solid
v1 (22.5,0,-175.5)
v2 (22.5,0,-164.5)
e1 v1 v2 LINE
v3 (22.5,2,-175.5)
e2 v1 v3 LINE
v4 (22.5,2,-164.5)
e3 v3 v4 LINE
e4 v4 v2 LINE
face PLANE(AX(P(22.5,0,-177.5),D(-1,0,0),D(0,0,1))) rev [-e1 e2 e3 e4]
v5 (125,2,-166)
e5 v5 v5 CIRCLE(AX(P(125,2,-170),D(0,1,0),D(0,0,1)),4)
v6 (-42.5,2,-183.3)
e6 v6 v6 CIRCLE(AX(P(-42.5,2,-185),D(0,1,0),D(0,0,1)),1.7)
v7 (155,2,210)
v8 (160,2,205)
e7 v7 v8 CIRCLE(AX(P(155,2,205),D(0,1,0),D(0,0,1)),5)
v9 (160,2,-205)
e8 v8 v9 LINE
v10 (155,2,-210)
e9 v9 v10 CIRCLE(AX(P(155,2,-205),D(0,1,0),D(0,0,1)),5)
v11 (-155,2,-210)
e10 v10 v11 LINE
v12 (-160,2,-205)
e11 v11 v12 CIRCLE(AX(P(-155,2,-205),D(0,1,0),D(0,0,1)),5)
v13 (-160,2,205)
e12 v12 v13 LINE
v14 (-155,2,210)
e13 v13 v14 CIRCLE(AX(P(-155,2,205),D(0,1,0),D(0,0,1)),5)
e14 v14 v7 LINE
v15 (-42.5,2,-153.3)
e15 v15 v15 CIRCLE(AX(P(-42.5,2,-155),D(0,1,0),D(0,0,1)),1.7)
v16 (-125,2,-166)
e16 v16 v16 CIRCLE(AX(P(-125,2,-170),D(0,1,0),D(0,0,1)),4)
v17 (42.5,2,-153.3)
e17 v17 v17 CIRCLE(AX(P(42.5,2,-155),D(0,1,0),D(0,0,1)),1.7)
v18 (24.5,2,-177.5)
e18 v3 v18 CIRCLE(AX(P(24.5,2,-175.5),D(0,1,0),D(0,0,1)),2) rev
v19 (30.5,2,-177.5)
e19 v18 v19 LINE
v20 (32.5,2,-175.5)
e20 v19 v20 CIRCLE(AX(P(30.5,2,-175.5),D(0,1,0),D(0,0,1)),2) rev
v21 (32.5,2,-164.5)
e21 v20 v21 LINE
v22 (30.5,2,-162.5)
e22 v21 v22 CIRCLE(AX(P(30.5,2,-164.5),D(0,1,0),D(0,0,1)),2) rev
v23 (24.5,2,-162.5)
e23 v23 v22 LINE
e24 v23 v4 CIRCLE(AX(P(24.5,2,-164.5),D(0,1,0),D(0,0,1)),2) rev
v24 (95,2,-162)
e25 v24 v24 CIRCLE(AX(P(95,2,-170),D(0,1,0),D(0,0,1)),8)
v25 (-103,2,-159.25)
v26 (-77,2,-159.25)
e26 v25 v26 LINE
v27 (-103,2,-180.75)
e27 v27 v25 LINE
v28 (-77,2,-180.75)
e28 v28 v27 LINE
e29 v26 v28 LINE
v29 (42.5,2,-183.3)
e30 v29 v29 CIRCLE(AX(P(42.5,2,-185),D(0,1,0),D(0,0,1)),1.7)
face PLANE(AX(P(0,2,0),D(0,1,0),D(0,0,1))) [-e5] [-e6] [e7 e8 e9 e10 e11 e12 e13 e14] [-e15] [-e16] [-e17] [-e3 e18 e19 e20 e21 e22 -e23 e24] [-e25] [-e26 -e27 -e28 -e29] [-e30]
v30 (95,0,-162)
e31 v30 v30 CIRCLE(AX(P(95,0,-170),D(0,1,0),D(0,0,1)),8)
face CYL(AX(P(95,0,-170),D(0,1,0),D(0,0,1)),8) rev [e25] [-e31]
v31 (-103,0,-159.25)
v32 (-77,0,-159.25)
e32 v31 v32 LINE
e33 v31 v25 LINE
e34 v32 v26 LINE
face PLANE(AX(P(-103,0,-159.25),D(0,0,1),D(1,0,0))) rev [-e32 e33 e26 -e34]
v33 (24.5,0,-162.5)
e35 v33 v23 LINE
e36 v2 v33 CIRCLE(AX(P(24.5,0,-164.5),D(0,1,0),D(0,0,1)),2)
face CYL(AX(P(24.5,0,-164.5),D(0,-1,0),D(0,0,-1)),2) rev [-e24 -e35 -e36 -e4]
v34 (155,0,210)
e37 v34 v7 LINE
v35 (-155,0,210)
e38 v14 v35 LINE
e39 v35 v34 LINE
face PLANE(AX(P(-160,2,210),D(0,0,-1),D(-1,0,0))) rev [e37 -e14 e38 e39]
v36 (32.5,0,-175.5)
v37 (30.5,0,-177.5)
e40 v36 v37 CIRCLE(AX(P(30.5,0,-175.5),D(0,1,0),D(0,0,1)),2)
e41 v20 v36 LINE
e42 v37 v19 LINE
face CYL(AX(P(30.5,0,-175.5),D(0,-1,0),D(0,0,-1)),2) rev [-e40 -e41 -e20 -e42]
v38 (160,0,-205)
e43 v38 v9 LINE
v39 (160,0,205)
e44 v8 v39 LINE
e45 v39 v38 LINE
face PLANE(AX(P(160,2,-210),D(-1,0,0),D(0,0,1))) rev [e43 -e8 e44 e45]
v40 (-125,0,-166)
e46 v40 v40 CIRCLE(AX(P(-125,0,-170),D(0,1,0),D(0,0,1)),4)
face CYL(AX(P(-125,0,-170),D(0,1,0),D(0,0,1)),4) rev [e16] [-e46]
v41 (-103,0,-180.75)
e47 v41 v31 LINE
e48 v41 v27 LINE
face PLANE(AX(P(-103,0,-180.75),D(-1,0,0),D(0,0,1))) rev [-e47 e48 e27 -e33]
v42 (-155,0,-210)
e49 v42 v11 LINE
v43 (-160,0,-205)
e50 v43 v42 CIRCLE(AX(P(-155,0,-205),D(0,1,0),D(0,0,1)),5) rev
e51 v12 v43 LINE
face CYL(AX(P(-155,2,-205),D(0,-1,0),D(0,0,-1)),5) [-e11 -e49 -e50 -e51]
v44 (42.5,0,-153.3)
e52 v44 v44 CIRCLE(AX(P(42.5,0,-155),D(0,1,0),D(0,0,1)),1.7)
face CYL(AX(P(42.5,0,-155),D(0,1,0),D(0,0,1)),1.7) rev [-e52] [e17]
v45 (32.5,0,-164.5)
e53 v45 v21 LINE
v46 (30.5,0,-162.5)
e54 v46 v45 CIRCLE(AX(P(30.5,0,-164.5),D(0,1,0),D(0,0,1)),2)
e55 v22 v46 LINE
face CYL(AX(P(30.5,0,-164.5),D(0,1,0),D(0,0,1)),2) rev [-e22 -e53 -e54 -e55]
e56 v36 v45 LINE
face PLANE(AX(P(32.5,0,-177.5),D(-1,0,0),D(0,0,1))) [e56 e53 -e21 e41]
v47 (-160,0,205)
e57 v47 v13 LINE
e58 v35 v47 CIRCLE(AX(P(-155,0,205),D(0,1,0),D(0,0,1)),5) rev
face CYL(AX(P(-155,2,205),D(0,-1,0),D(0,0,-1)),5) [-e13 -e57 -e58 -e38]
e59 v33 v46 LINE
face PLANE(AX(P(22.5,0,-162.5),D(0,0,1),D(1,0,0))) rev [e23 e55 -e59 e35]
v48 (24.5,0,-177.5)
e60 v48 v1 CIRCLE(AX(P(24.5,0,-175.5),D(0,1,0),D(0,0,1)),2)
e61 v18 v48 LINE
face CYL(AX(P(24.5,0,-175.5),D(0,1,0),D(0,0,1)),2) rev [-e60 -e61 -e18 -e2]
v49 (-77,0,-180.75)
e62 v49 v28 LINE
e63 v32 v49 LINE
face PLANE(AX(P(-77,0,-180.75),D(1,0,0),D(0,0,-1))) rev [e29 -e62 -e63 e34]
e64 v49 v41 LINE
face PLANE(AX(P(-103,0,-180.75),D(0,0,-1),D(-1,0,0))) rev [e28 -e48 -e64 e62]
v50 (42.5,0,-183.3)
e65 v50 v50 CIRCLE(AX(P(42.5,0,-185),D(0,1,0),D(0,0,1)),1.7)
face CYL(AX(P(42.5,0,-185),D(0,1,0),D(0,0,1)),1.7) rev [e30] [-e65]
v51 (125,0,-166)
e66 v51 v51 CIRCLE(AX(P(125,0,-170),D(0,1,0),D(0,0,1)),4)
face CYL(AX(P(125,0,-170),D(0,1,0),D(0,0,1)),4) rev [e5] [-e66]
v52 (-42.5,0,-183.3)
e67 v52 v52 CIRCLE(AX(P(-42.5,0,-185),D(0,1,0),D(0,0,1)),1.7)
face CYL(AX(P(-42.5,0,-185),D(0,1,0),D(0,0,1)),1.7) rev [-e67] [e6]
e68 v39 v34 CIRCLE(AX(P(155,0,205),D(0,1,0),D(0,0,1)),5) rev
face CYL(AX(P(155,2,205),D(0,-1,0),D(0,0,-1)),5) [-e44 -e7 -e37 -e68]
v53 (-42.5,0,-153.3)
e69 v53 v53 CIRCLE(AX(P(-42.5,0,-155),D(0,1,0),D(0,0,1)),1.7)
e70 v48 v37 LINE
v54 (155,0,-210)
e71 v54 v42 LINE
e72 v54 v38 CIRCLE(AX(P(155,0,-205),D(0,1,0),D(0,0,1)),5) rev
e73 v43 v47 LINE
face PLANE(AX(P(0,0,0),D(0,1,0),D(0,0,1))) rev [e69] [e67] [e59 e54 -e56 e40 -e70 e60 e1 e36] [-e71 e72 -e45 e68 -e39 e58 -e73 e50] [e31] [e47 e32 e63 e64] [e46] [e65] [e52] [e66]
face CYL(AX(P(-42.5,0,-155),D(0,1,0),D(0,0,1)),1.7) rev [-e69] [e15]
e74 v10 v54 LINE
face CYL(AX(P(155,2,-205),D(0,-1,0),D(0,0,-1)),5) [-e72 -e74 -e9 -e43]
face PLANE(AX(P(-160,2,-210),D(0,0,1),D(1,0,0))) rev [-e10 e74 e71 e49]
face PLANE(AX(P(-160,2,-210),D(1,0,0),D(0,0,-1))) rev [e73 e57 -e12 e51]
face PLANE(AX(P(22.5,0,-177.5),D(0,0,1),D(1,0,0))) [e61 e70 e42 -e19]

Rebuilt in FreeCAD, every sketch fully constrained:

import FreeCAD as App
import Part
import Sketcher
from FreeCAD import Vector


def edges_at(feature, points):
    """Names of the edges that pass closest to the given points."""
    edges = feature.Shape.Edges
    near = lambda p: min(range(len(edges)), key=lambda i: edges[i].distToShape(Part.Vertex(*p))[0])
    return sorted({f"Edge{near(p) + 1}" for p in points})


def add_polygon(sketch, points):
    """Adds a closed chain of lines whose ends are joined by coincident constraints."""
    first, n = sketch.GeometryCount, len(points)
    for a, b in zip(points, points[1:] + points[:1]):
        sketch.addGeometry(Part.LineSegment(App.Vector(*a, 0), App.Vector(*b, 0)), False)
    for i in range(n):
        sketch.addConstraint(Sketcher.Constraint("Coincident", first + i, 2, first + (i + 1) % n, 1))

doc = App.newDocument("Part")
body = doc.addObject("PartDesign::Body", "Body")

# Sketch on XZ plane
sketch1 = doc.addObject("Sketcher::SketchObject", "Sketch")
body.addObject(sketch1)
sketch1.AttachmentSupport = (doc.XZ_Plane, [""])
sketch1.MapMode = "FlatFace"
add_polygon(sketch1, [(-160, -210), (-160, 210), (160, 210), (160, -210)])  # lines 0-3
sketch1.addConstraint(Sketcher.Constraint("Vertical", 0))
sketch1.addConstraint(Sketcher.Constraint("Horizontal", 1))
sketch1.addConstraint(Sketcher.Constraint("Vertical", 2))
sketch1.addConstraint(Sketcher.Constraint("Horizontal", 3))
sketch1.addConstraint(Sketcher.Constraint("Symmetric", 0, 2, 2, 2, -1, 1))
sketch1.addConstraint(Sketcher.Constraint("DistanceX", 1, 1, 1, 2, 320.0))
sketch1.addConstraint(Sketcher.Constraint("DistanceY", 0, 1, 0, 2, 420.0))
pad1 = doc.addObject("PartDesign::Pad", "Pad")
body.addObject(pad1)
pad1.Profile = sketch1
pad1.Length = 2
pad1.Reversed = True

# Sketch on XZ plane
sketch2 = doc.addObject("Sketcher::SketchObject", "Sketch001")
body.addObject(sketch2)
sketch2.AttachmentSupport = (doc.XZ_Plane, [""])
sketch2.MapMode = "FlatFace"
sketch2.AttachmentOffset = App.Placement(Vector(0, 0, -2), App.Rotation())
sketch2.addGeometry(Part.Circle(Vector(-42.5, -185, 0), Vector(0, 0, 1), 1.7), False)  # 0
sketch2.addGeometry(Part.Circle(Vector(42.5, -185, 0), Vector(0, 0, 1), 1.7), False)  # 1
sketch2.addGeometry(Part.Circle(Vector(42.5, -155, 0), Vector(0, 0, 1), 1.7), False)  # 2
sketch2.addGeometry(Part.Circle(Vector(-42.5, -155, 0), Vector(0, 0, 1), 1.7), False)  # 3
add_polygon(sketch2, [(22.5, -177.5), (22.5, -162.5), (32.5, -162.5), (32.5, -177.5)])  # lines 4-7
sketch2.addConstraint(Sketcher.Constraint("Vertical", 4))
sketch2.addConstraint(Sketcher.Constraint("Horizontal", 5))
sketch2.addConstraint(Sketcher.Constraint("Vertical", 6))
sketch2.addConstraint(Sketcher.Constraint("Horizontal", 7))
sketch2.addConstraint(Sketcher.Constraint("Equal", 0, 1))
sketch2.addConstraint(Sketcher.Constraint("Equal", 1, 2))
sketch2.addConstraint(Sketcher.Constraint("Equal", 2, 3))
sketch2.addConstraint(Sketcher.Constraint("Symmetric", 0, 3, 1, 3, -2))
sketch2.addConstraint(Sketcher.Constraint("Symmetric", 2, 3, 3, 3, -2))
sketch2.addConstraint(Sketcher.Constraint("Vertical", 1, 3, 2, 3))
sketch2.addConstraint(Sketcher.Constraint("Diameter", 0, 3.4))
sketch2.addConstraint(Sketcher.Constraint("DistanceX", 5, 1, 5, 2, 10.0))
sketch2.addConstraint(Sketcher.Constraint("DistanceY", 4, 1, 4, 2, 15.0))
sketch2.addConstraint(Sketcher.Constraint("DistanceY", 0, 3, -1, 1, 185.0))
sketch2.addConstraint(Sketcher.Constraint("DistanceY", 2, 3, -1, 1, 155.0))
sketch2.addConstraint(Sketcher.Constraint("DistanceX", 0, 3, 1, 3, 85.0))
sketch2.addConstraint(Sketcher.Constraint("DistanceX", 4, 2, 2, 3, 20.0))
sketch2.addConstraint(Sketcher.Constraint("DistanceY", 4, 2, -1, 1, 162.5))
pocket1 = doc.addObject("PartDesign::Pocket", "Pocket")
body.addObject(pocket1)
pocket1.Profile = sketch2
pocket1.Length = 2
pocket1.Reversed = True

# Sketch on XZ plane
sketch3 = doc.addObject("Sketcher::SketchObject", "Sketch002")
body.addObject(sketch3)
sketch3.AttachmentSupport = (doc.XZ_Plane, [""])
sketch3.MapMode = "FlatFace"
sketch3.AttachmentOffset = App.Placement(Vector(0, 0, -2), App.Rotation())
sketch3.addGeometry(Part.Circle(Vector(-125, -170, 0), Vector(0, 0, 1), 4), False)  # 0
sketch3.addGeometry(Part.Circle(Vector(95, -170, 0), Vector(0, 0, 1), 8), False)  # 1
sketch3.addGeometry(Part.Circle(Vector(125, -170, 0), Vector(0, 0, 1), 4), False)  # 2
add_polygon(sketch3, [(-103, -180.8), (-103, -159.2), (-77, -159.2), (-77, -180.8)])  # lines 3-6
sketch3.addConstraint(Sketcher.Constraint("Vertical", 3))
sketch3.addConstraint(Sketcher.Constraint("Horizontal", 4))
sketch3.addConstraint(Sketcher.Constraint("Vertical", 5))
sketch3.addConstraint(Sketcher.Constraint("Horizontal", 6))
sketch3.addConstraint(Sketcher.Constraint("Equal", 0, 2))
sketch3.addConstraint(Sketcher.Constraint("Symmetric", 0, 3, 2, 3, -2))
sketch3.addConstraint(Sketcher.Constraint("Horizontal", 0, 3, 1, 3))
sketch3.addConstraint(Sketcher.Constraint("Diameter", 0, 8.0))
sketch3.addConstraint(Sketcher.Constraint("Diameter", 1, 16.0))
sketch3.addConstraint(Sketcher.Constraint("DistanceX", 4, 1, 4, 2, 26.0))
sketch3.addConstraint(Sketcher.Constraint("DistanceY", 3, 1, 3, 2, 21.5))
sketch3.addConstraint(Sketcher.Constraint("DistanceX", 0, 3, -1, 1, 125.0))
sketch3.addConstraint(Sketcher.Constraint("DistanceY", 0, 3, -1, 1, 170.0))
sketch3.addConstraint(Sketcher.Constraint("DistanceX", -1, 1, 1, 3, 95.0))
sketch3.addConstraint(Sketcher.Constraint("DistanceX", 3, 2, -1, 1, 103.0))
sketch3.addConstraint(Sketcher.Constraint("DistanceY", 3, 2, -1, 1, 159.25))
pocket2 = doc.addObject("PartDesign::Pocket", "Pocket001")
body.addObject(pocket2)
pocket2.Profile = sketch3
pocket2.Length = 2
pocket2.Reversed = True
doc.recompute()

fillet = doc.addObject("PartDesign::Fillet", "Fillet")
body.addObject(fillet)
fillet.Base = (pocket2, edges_at(pocket2, [
    (160, 1, 210),
    (-160, 1, 210),
    (-160, 1, -210),
    (160, 1, -210),
]))
fillet.Radius = 5
doc.recompute()

fillet2 = doc.addObject("PartDesign::Fillet", "Fillet001")
body.addObject(fillet2)
fillet2.Base = (fillet, edges_at(fillet, [
    (32.5, 1, -162.5),
    (22.5, 1, -162.5),
    (22.5, 1, -177.5),
    (32.5, 1, -177.5),
]))
fillet2.Radius = 2

doc.recompute()
